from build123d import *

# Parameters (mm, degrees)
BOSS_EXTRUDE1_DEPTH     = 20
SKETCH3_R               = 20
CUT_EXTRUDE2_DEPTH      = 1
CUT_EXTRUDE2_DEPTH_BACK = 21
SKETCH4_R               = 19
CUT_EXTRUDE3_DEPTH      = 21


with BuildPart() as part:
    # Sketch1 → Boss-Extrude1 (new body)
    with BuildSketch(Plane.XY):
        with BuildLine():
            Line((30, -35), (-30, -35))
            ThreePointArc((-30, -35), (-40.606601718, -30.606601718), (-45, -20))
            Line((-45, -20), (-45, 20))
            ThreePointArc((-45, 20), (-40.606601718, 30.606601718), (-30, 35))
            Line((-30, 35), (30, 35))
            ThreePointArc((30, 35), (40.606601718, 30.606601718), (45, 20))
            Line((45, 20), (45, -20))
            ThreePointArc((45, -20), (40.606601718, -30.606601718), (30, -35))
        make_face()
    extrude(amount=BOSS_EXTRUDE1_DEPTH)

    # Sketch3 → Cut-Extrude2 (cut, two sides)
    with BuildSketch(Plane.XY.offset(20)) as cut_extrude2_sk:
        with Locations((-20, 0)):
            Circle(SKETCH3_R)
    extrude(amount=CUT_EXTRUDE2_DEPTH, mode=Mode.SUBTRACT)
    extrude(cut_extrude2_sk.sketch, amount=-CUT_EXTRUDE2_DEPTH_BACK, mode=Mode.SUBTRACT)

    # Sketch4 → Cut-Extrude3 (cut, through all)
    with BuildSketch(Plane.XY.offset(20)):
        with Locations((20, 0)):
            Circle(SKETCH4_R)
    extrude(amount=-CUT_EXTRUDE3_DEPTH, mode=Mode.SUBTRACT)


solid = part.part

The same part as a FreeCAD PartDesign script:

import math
import FreeCAD as App
import Part
import Sketcher
Q = App.Units.Quantity

doc = App.newDocument("Part")
body = doc.addObject("PartDesign::Body", "Body")

# Sketch on XY plane
sketch1 = body.newObject("Sketcher::SketchObject", "Sketch")
sketch1.AttachmentSupport = (doc.getObject("XY_Plane"), [""])
sketch1.MapMode = "FlatFace"
sketch1.addGeometry(Part.LineSegment(App.Vector(-30, -35, 0), App.Vector(30, -35, 0)), False)
sketch1.addGeometry(Part.ArcOfCircle(Part.Circle(App.Vector(30, -20, 0), App.Vector(0, 0, 1), 15), math.radians(-90), math.radians(0)), False)
sketch1.addGeometry(Part.LineSegment(App.Vector(45, -20, 0), App.Vector(45, 20, 0)), False)
sketch1.addGeometry(Part.ArcOfCircle(Part.Circle(App.Vector(30, 20, 0), App.Vector(0, 0, 1), 15), math.radians(0), math.radians(90)), False)
sketch1.addGeometry(Part.LineSegment(App.Vector(30, 35, 0), App.Vector(-30, 35, 0)), False)
sketch1.addGeometry(Part.ArcOfCircle(Part.Circle(App.Vector(-30, 20, 0), App.Vector(0, 0, 1), 15), math.radians(90), math.radians(180)), False)
sketch1.addGeometry(Part.LineSegment(App.Vector(-45, 20, 0), App.Vector(-45, -20, 0)), False)
sketch1.addGeometry(Part.ArcOfCircle(Part.Circle(App.Vector(-30, -20, 0), App.Vector(0, 0, 1), 15), math.radians(180), math.radians(270)), False)
sketch1.addConstraint(Sketcher.Constraint("Tangent", 0, 2, 1, 1))
sketch1.addConstraint(Sketcher.Constraint("Tangent", 1, 2, 2, 1))
sketch1.addConstraint(Sketcher.Constraint("Tangent", 2, 2, 3, 1))
sketch1.addConstraint(Sketcher.Constraint("Tangent", 3, 2, 4, 1))
sketch1.addConstraint(Sketcher.Constraint("Tangent", 4, 2, 5, 1))
sketch1.addConstraint(Sketcher.Constraint("Tangent", 5, 2, 6, 1))
sketch1.addConstraint(Sketcher.Constraint("Tangent", 6, 2, 7, 1))
sketch1.addConstraint(Sketcher.Constraint("Tangent", 7, 2, 0, 1))
sketch1.addConstraint(Sketcher.Constraint("Horizontal", 0))
sketch1.addConstraint(Sketcher.Constraint("Vertical", 2))
sketch1.addConstraint(Sketcher.Constraint("Horizontal", 4))
sketch1.addConstraint(Sketcher.Constraint("Vertical", 6))
sketch1.addConstraint(Sketcher.Constraint("Equal", 1, 3))
sketch1.addConstraint(Sketcher.Constraint("Equal", 3, 5))
sketch1.addConstraint(Sketcher.Constraint("Equal", 5, 7))
sketch1.addConstraint(Sketcher.Constraint("Symmetric", 1, 3, 5, 3, -1, 1))
sketch1.addConstraint(Sketcher.Constraint("Radius", 1, Q("15 mm")))
sketch1.addConstraint(Sketcher.Constraint("DistanceX", 0, 1, 0, 2, Q("60 mm")))
sketch1.addConstraint(Sketcher.Constraint("DistanceY", 2, 1, 2, 2, Q("40 mm")))
pad1 = body.newObject("PartDesign::Pad", "Pad")
pad1.Profile = sketch1
pad1.Length = 20

# Sketch on XY plane
sketch2 = body.newObject("Sketcher::SketchObject", "Sketch001")
sketch2.AttachmentSupport = (doc.getObject("XY_Plane"), [""])
sketch2.MapMode = "FlatFace"
sketch2.AttachmentOffset = App.Placement(App.Vector(0, 0, 20), App.Rotation())
sketch2.addGeometry(Part.Circle(App.Vector(-20, 0, 0), App.Vector(0, 0, 1), 20), False)
sketch2.addConstraint(Sketcher.Constraint("PointOnObject", 0, 3, -1))
sketch2.addConstraint(Sketcher.Constraint("Diameter", 0, Q("40 mm")))
sketch2.addConstraint(Sketcher.Constraint("DistanceX", 0, 3, -1, 1, Q("20 mm")))
pocket1 = body.newObject("PartDesign::Pocket", "Pocket")
pocket1.Profile = sketch2
pocket1.Type = "ThroughAll"
pocket1.Midplane = True

# Sketch on XY plane
sketch3 = body.newObject("Sketcher::SketchObject", "Sketch002")
sketch3.AttachmentSupport = (doc.getObject("XY_Plane"), [""])
sketch3.MapMode = "FlatFace"
sketch3.AttachmentOffset = App.Placement(App.Vector(0, 0, 20), App.Rotation())
sketch3.addGeometry(Part.Circle(App.Vector(20, 0, 0), App.Vector(0, 0, 1), 19), False)
sketch3.addConstraint(Sketcher.Constraint("PointOnObject", 0, 3, -1))
sketch3.addConstraint(Sketcher.Constraint("Diameter", 0, Q("38 mm")))
sketch3.addConstraint(Sketcher.Constraint("DistanceX", -1, 1, 0, 3, Q("20 mm")))
pocket2 = body.newObject("PartDesign::Pocket", "Pocket001")
pocket2.Profile = sketch3
pocket2.Type = "ThroughAll"

doc.recompute()
